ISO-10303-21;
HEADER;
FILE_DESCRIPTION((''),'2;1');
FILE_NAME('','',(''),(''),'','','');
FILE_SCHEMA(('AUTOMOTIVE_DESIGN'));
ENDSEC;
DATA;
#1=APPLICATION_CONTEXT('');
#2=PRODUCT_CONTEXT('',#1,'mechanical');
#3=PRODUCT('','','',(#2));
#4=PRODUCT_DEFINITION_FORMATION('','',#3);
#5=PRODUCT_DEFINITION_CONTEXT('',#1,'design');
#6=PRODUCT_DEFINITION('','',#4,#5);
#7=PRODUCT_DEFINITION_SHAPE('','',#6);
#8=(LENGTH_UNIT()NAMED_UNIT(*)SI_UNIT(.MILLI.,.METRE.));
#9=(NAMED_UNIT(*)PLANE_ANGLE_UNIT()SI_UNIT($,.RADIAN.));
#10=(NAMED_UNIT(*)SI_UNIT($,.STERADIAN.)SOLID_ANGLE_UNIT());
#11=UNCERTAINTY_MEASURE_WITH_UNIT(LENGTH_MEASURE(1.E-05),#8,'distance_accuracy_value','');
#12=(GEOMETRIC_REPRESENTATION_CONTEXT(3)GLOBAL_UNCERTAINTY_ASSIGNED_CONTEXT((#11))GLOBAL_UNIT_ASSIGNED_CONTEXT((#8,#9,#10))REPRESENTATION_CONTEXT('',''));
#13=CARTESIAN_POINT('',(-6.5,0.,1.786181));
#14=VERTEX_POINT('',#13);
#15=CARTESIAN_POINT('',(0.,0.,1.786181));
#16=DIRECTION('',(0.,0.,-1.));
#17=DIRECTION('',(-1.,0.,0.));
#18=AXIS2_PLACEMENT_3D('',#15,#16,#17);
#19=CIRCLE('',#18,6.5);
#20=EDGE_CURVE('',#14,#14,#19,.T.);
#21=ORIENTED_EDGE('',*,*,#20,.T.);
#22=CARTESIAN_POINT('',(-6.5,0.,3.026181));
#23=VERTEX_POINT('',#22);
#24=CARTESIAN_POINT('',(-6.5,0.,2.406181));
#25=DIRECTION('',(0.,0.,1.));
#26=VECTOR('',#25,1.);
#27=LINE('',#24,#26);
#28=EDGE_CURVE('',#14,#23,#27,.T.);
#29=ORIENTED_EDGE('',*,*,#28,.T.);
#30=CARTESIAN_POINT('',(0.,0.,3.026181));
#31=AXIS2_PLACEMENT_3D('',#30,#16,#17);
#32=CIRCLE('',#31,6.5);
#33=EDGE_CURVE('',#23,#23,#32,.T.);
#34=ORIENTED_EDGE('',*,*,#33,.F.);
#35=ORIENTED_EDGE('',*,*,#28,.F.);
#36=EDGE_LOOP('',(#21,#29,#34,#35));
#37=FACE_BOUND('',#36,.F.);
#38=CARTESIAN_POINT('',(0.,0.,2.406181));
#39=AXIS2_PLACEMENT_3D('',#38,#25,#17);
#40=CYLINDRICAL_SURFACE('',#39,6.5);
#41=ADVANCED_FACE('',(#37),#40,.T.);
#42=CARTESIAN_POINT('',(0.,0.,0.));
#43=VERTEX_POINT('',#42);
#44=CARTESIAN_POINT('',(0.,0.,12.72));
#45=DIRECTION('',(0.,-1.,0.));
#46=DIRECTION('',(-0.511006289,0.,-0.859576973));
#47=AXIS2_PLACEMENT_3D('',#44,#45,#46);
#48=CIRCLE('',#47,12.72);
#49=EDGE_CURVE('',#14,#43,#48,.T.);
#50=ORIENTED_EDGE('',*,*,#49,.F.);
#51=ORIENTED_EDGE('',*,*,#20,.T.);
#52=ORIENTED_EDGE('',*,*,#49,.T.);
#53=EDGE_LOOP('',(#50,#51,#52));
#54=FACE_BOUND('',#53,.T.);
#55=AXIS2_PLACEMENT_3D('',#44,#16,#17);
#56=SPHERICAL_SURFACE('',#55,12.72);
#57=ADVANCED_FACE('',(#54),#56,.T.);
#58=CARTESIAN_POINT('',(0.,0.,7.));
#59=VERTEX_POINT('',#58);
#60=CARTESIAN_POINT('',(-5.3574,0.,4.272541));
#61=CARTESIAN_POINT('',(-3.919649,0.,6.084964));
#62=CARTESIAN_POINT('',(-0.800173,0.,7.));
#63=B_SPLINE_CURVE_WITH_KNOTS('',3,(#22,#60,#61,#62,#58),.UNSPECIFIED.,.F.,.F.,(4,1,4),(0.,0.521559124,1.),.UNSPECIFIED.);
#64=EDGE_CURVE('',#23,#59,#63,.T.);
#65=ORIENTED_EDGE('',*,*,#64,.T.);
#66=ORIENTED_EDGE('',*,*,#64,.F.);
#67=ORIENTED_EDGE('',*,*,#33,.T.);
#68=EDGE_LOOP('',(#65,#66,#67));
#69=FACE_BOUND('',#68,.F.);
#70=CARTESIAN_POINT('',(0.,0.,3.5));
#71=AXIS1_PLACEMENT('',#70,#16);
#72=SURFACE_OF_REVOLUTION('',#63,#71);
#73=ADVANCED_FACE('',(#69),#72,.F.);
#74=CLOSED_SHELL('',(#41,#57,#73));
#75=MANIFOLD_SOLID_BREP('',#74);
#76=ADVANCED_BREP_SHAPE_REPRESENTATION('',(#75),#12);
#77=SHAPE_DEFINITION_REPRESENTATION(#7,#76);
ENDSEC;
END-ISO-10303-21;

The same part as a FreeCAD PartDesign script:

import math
import FreeCAD as App
import Part
import Sketcher

V = App.Vector

doc = App.newDocument("Part")
body = doc.addObject("PartDesign::Body", "Body")

sketch1 = body.newObject("Sketcher::SketchObject", "Sketch")
sketch1.AttachmentSupport = (doc.getObject("XZ_Plane"), [""])
sketch1.MapMode = "FlatFace"
sketch1.addGeometry([
    Part.ArcOfCircle(Part.Circle(V(0, 12.72, 0), V(0, 0, 1), 12.72), math.radians(-120.730881), math.radians(-90)),
    Part.LineSegment(V(0, 0, 0), V(0, 7, 0)),
    Part.BSplineCurve([V(-6.5, 3.026181, 0), V(-5.3574, 4.272541, 0), V(-3.919649, 6.084964, 0), V(-0.800173, 7, 0), V(0, 7, 0)], [4, 1, 4], [0, 0.521559124, 1], False, 3, [1, 1, 1, 1, 1], False),
    Part.LineSegment(V(-6.5, 3.026181, 0), V(-6.5, 1.786181, 0)),
], False)
sketch1.addConstraint([
    Sketcher.Constraint("Block", 2),
    Sketcher.Constraint("Coincident", 0, 2, 1, 1),
    Sketcher.Constraint("Coincident", 1, 2, 2, 2),
    Sketcher.Constraint("Coincident", 2, 1, 3, 1),
    Sketcher.Constraint("Coincident", 3, 2, 0, 1),
    Sketcher.Constraint("Vertical", 1),
    Sketcher.Constraint("Vertical", 3),
    Sketcher.Constraint("PointOnObject", 0, 3, -2),
    Sketcher.Constraint("DistanceY", 1, 1, 1, 2, 7.0),
    Sketcher.Constraint("Radius", 0, 12.72),
])
revolution = body.newObject("PartDesign::Revolution", "Revolution")
revolution.Profile = sketch1
revolution.ReferenceAxis = (sketch1, ["V_Axis"])
revolution.Angle = 360

doc.recompute()
